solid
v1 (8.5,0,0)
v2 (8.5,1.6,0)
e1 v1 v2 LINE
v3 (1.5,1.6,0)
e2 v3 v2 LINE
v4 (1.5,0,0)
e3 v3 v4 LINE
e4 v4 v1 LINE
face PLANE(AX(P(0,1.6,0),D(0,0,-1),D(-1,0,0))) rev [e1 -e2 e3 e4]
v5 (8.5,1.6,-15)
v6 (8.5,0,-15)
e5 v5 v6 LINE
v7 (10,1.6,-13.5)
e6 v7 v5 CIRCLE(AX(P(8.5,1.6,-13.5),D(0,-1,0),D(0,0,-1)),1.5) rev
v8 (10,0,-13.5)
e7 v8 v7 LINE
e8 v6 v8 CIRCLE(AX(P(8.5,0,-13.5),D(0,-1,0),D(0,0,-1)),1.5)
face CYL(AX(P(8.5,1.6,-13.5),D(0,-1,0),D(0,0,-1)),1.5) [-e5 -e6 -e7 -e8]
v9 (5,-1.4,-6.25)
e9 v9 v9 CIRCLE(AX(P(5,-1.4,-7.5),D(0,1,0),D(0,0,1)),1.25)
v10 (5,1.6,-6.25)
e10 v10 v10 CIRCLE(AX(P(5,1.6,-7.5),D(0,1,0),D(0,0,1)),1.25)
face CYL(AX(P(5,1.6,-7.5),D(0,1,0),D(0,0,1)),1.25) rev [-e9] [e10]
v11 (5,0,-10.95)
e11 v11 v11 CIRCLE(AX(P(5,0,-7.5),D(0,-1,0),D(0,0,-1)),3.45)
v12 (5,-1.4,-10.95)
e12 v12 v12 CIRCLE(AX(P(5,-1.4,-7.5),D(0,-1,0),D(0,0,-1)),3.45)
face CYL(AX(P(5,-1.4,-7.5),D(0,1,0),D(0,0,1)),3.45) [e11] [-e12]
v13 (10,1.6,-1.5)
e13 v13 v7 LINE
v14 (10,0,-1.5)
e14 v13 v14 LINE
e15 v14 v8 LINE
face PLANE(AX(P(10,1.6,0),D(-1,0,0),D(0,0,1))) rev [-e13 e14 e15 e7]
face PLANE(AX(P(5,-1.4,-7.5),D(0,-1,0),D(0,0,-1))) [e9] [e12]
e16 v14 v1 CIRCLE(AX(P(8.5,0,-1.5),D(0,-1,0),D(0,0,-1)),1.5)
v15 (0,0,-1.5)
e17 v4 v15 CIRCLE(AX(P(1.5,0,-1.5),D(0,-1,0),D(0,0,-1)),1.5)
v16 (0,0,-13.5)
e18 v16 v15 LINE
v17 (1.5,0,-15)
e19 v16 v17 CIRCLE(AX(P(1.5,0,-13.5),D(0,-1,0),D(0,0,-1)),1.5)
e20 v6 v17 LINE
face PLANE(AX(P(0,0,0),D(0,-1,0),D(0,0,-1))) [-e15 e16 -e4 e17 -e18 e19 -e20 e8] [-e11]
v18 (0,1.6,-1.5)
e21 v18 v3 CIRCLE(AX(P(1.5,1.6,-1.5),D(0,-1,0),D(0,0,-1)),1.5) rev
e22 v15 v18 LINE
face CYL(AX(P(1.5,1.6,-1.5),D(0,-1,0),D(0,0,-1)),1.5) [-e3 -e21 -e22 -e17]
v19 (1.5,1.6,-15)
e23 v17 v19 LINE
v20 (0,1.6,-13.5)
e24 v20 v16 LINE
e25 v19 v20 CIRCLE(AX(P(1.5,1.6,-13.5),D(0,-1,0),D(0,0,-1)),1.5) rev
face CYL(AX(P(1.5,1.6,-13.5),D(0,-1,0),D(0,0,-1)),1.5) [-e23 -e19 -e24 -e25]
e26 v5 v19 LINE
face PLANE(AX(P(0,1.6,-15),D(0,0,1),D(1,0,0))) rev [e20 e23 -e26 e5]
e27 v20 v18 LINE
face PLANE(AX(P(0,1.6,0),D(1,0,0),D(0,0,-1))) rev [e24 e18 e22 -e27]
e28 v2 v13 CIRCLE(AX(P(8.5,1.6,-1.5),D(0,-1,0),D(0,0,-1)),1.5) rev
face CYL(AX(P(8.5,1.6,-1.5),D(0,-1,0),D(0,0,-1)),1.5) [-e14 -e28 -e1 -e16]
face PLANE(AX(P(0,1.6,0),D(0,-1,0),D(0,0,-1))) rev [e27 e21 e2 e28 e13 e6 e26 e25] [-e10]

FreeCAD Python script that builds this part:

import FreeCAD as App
import Part
import Sketcher
Q = App.Units.Quantity


def edges_at(feature, points):
    """Names of the edges that pass closest to the given points."""
    edges = feature.Shape.Edges
    near = lambda p: min(range(len(edges)), key=lambda i: edges[i].distToShape(Part.Vertex(*p))[0])
    return sorted({f"Edge{near(p) + 1}" for p in points})


def add_polygon(sketch, points):
    """Adds a closed chain of lines whose ends are joined by coincident constraints."""
    first, n = sketch.GeometryCount, len(points)
    for a, b in zip(points, points[1:] + points[:1]):
        sketch.addGeometry(Part.LineSegment(App.Vector(*a, 0), App.Vector(*b, 0)), False)
    for i in range(n):
        sketch.addConstraint(Sketcher.Constraint("Coincident", first + i, 2, first + (i + 1) % n, 1))

doc = App.newDocument("Part")
body = doc.addObject("PartDesign::Body", "Body")

# Sketch on XZ plane
sketch1 = doc.addObject("Sketcher::SketchObject", "Sketch")
body.addObject(sketch1)
sketch1.AttachmentSupport = (doc.XZ_Plane, [""])
sketch1.MapMode = "FlatFace"
add_polygon(sketch1, [(0, -15), (0, 0), (10, 0), (10, -15)])  # lines 0-3
sketch1.addConstraint([
    Sketcher.Constraint("Vertical", 0),
    Sketcher.Constraint("Horizontal", 1),
    Sketcher.Constraint("Vertical", 2),
    Sketcher.Constraint("Horizontal", 3),
    Sketcher.Constraint("Coincident", 0, 2, -1, 1),
    Sketcher.Constraint("DistanceX", 1, 1, 1, 2, Q("10 mm")),
    Sketcher.Constraint("DistanceY", 0, 1, 0, 2, Q("15 mm")),
])
pad1 = doc.addObject("PartDesign::Pad", "Pad")
body.addObject(pad1)
pad1.Profile = sketch1
pad1.Length = 1.6
pad1.Reversed = True
doc.recompute()

fillet = doc.addObject("PartDesign::Fillet", "Fillet")
body.addObject(fillet)
fillet.Base = (pad1, edges_at(pad1, [
    (0, 0.8, -15),
    (10, 0.8, -15),
    (10, 0.8, 0),
    (0, 0.8, 0),
]))
fillet.Radius = 1.5

# Sketch on XZ plane
sketch2 = doc.addObject("Sketcher::SketchObject", "Sketch001")
body.addObject(sketch2)
sketch2.AttachmentSupport = (doc.XZ_Plane, [""])
sketch2.MapMode = "FlatFace"
sketch2.addGeometry(Part.Circle(App.Vector(5, -7.5, 0), App.Vector(0, 0, 1), 3.45), False)
sketch2.addConstraint([
    Sketcher.Constraint("Diameter", 0, Q("6.9 mm")),
    Sketcher.Constraint("DistanceX", -1, 1, 0, 3, Q("5 mm")),
    Sketcher.Constraint("DistanceY", 0, 3, -1, 1, Q("7.5 mm")),
])
pad2 = doc.addObject("PartDesign::Pad", "Pad001")
body.addObject(pad2)
pad2.Profile = sketch2
pad2.Length = 1.4

# Sketch on XZ plane
sketch3 = doc.addObject("Sketcher::SketchObject", "Sketch002")
body.addObject(sketch3)
sketch3.AttachmentSupport = (doc.XZ_Plane, [""])
sketch3.MapMode = "FlatFace"
sketch3.AttachmentOffset = App.Placement(App.Vector(0, 0, -1.6), App.Rotation())
sketch3.addGeometry(Part.Circle(App.Vector(5, -7.5, 0), App.Vector(0, 0, 1), 1.25), False)
sketch3.addConstraint([
    Sketcher.Constraint("Diameter", 0, Q("2.5 mm")),
    Sketcher.Constraint("DistanceX", -1, 1, 0, 3, Q("5 mm")),
    Sketcher.Constraint("DistanceY", 0, 3, -1, 1, Q("7.5 mm")),
])
doc.recompute()
hole = doc.addObject("PartDesign::Hole", "Hole")
body.addObject(hole)
hole.Profile = sketch3
hole.ThreadType = "None"
hole.Diameter = 2.5
hole.DepthType = "ThroughAll"
hole.Reversed = True

doc.recompute()
